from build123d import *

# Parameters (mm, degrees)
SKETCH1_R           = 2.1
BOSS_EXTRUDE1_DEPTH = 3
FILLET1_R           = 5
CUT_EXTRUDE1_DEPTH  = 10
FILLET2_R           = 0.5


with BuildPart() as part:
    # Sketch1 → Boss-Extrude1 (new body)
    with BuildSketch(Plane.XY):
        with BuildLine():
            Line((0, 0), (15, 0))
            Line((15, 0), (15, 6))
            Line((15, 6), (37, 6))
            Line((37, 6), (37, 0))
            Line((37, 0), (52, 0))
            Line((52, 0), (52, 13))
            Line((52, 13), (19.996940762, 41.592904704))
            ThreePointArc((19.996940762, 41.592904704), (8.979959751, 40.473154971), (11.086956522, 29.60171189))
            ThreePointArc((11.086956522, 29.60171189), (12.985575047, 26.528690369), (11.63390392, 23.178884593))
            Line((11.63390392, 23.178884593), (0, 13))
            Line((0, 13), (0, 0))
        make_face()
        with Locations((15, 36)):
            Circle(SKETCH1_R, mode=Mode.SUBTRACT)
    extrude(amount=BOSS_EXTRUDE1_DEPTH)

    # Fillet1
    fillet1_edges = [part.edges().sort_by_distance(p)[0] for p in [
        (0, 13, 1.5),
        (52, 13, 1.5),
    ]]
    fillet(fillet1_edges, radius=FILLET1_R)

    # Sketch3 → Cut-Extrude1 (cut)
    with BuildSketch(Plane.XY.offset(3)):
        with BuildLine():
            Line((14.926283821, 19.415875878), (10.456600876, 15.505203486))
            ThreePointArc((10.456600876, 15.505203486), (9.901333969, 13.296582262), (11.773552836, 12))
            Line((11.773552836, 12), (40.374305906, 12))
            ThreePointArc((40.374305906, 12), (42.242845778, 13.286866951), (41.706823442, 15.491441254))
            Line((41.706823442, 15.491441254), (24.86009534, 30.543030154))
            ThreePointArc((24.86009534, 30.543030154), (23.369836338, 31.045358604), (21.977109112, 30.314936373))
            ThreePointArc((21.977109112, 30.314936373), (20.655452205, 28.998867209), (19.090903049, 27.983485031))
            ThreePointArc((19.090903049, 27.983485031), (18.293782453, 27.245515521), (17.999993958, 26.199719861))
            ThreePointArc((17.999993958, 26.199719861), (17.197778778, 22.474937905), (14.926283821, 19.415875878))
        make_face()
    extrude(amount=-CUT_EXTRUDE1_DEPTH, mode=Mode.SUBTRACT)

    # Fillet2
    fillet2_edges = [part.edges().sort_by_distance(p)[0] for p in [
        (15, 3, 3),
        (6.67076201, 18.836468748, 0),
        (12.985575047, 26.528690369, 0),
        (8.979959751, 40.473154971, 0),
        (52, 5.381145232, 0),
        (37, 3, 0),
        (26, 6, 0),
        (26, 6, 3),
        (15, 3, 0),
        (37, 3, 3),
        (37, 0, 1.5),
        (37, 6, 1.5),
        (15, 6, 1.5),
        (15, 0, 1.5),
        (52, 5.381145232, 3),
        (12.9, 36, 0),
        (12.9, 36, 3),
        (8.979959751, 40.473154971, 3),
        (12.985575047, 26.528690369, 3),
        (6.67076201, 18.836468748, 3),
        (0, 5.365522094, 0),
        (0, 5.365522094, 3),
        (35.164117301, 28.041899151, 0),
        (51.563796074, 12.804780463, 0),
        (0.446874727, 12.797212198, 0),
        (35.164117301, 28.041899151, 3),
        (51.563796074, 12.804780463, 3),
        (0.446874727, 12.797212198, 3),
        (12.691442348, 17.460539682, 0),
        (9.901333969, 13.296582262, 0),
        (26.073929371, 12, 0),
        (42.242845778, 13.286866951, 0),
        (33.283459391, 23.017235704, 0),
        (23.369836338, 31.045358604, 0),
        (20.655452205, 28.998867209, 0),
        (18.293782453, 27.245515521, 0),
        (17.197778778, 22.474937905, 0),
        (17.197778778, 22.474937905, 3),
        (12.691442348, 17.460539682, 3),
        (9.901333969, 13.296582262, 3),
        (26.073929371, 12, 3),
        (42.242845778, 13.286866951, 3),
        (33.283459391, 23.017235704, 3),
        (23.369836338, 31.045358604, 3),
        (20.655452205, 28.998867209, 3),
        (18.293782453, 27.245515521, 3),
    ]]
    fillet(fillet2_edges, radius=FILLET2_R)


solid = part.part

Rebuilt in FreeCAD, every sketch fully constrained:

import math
import FreeCAD as App
import Part
import Sketcher
from FreeCAD import Vector
Q = App.Units.Quantity


def edges_at(feature, points):
    """Names of the edges that pass closest to the given points."""
    edges = feature.Shape.Edges
    near = lambda p: min(range(len(edges)), key=lambda i: edges[i].distToShape(Part.Vertex(*p))[0])
    return sorted({f"Edge{near(p) + 1}" for p in points})

doc = App.newDocument("Part")
body = doc.addObject("PartDesign::Body", "Body")

# Sketch on XY plane
sketch1 = body.newObject("Sketcher::SketchObject", "Sketch")
sketch1.AttachmentSupport = (doc.getObject("XY_Plane"), [""])
sketch1.MapMode = "FlatFace"
sketch1.addGeometry([
    Part.LineSegment(Vector(0, 0, 0), Vector(15, 0, 0)),  # 0
    Part.LineSegment(Vector(15, 0, 0), Vector(15, 6, 0)),  # 1
    Part.LineSegment(Vector(15, 6, 0), Vector(37, 6, 0)),  # 2
    Part.LineSegment(Vector(37, 6, 0), Vector(37, 0, 0)),  # 3
    Part.LineSegment(Vector(37, 0, 0), Vector(52, 0, 0)),  # 4
    Part.LineSegment(Vector(52, 0, 0), Vector(52, 13, 0)),  # 5
    Part.LineSegment(Vector(52, 13, 0), Vector(20, 41.6, 0)),  # 6
    Part.ArcOfCircle(Part.Circle(Vector(15, 36, 0), Vector(0, 0, 1), 7.5), math.radians(48), math.radians(239)),  # 7
    Part.ArcOfCircle(Part.Circle(Vector(9, 26.2, 0), Vector(0, 0, 1), 4), math.radians(-49), math.radians(59)),  # 8
    Part.LineSegment(Vector(11.6, 23.2, 0), Vector(0, 13, 0)),  # 9
    Part.LineSegment(Vector(0, 13, 0), Vector(0, 0, 0)),  # 10
    Part.Circle(Vector(15, 36, 0), Vector(0, 0, 1), 2.1),  # 11
], False)
sketch1.addConstraint([
    Sketcher.Constraint("Coincident", 0, 2, 1, 1),
    Sketcher.Constraint("Coincident", 1, 2, 2, 1),
    Sketcher.Constraint("Coincident", 2, 2, 3, 1),
    Sketcher.Constraint("Coincident", 3, 2, 4, 1),
    Sketcher.Constraint("Coincident", 4, 2, 5, 1),
    Sketcher.Constraint("Coincident", 5, 2, 6, 1),
    Sketcher.Constraint("Tangent", 6, 2, 7, 1),
    Sketcher.Constraint("Tangent", 7, 2, 8, 2),
    Sketcher.Constraint("Tangent", 8, 1, 9, 1),
    Sketcher.Constraint("Coincident", 9, 2, 10, 1),
    Sketcher.Constraint("Coincident", 10, 2, 0, 1),
    Sketcher.Constraint("Horizontal", 0),
    Sketcher.Constraint("Vertical", 1),
    Sketcher.Constraint("Horizontal", 2),
    Sketcher.Constraint("Vertical", 3),
    Sketcher.Constraint("Horizontal", 4),
    Sketcher.Constraint("Vertical", 5),
    Sketcher.Constraint("Vertical", 10),
    Sketcher.Constraint("Coincident", 10, 2, -1, 1),
    Sketcher.Constraint("Coincident", 11, 3, 7, 3),
    Sketcher.Constraint("PointOnObject", 3, 2, -1),
    Sketcher.Constraint("Horizontal", 5, 2, 9, 2),
    Sketcher.Constraint("Vertical", 11, 3, 0, 2),
    Sketcher.Constraint("Equal", 0, 4),
    Sketcher.Constraint("Radius", 8, Q("4 mm")),
    Sketcher.Constraint("Diameter", 11, Q("4.2 mm")),
    Sketcher.Constraint("Radius", 7, Q("7.5 mm")),
    Sketcher.Constraint("DistanceX", 0, 1, 0, 2, Q("15 mm")),
    Sketcher.Constraint("DistanceX", 2, 1, 2, 2, Q("22 mm")),
    Sketcher.Constraint("DistanceY", 1, 1, 1, 2, Q("6 mm")),
    Sketcher.Constraint("DistanceY", 5, 1, 5, 2, Q("13 mm")),
    Sketcher.Constraint("DistanceY", -1, 1, 7, 3, Q("36 mm")),
    Sketcher.Constraint("DistanceX", -1, 1, 8, 3, Q("9 mm")),
])
pad1 = body.newObject("PartDesign::Pad", "Pad")
pad1.Profile = sketch1
pad1.Length = 3
doc.recompute()

fillet = body.newObject("PartDesign::Fillet", "Fillet")
fillet.Base = (pad1, edges_at(pad1, [(0, 13, 1.5), (52, 13, 1.5)]))
fillet.Radius = 5

# Sketch on XY plane
sketch2 = body.newObject("Sketcher::SketchObject", "Sketch001")
sketch2.AttachmentSupport = (doc.getObject("XY_Plane"), [""])
sketch2.MapMode = "FlatFace"
sketch2.AttachmentOffset = App.Placement(Vector(0, 0, 3), App.Rotation())
sketch2.addGeometry([
    Part.LineSegment(Vector(14.926284, 19.415876, 0), Vector(10.456601, 15.505203, 0)),  # 0
    Part.ArcOfCircle(Part.Circle(Vector(11.773553, 14, 0), Vector(0, 0, 1), 2), math.radians(131.183746), math.radians(270)),  # 1
    Part.LineSegment(Vector(11.773553, 12, 0), Vector(40.374306, 12, 0)),  # 2
    Part.ArcOfCircle(Part.Circle(Vector(40.374306, 14, 0), Vector(0, 0, 1), 2), math.radians(-90), math.radians(48.221033)),  # 3
    Part.LineSegment(Vector(41.706823, 15.491441, 0), Vector(24.860095, 30.54303, 0)),  # 4
    Part.ArcOfCircle(Part.Circle(Vector(23.527578, 29.051589, 0), Vector(0, 0, 1), 2), math.radians(48.221033), math.radians(140.826284)),  # 5
    Part.ArcOfCircle(Part.Circle(Vector(15, 36, 0), Vector(0, 0, 1), 9), math.radians(-62.964351), math.radians(-39.173716)),  # 6
    Part.ArcOfCircle(Part.Circle(Vector(19.999993, 26.202037, 0), Vector(0, 0, 1), 2), math.radians(117.035649), math.radians(180.066389)),  # 7
    Part.ArcOfCircle(Part.Circle(Vector(9, 26.189292, 0), Vector(0, 0, 1), 9), math.radians(-48.816254), math.radians(0.066389)),  # 8
], False)
sketch2.addConstraint([
    Sketcher.Constraint("Tangent", 0, 2, 1, 1),
    Sketcher.Constraint("Tangent", 1, 2, 2, 1),
    Sketcher.Constraint("Tangent", 2, 2, 3, 1),
    Sketcher.Constraint("Tangent", 3, 2, 4, 1),
    Sketcher.Constraint("Tangent", 4, 2, 5, 1),
    Sketcher.Constraint("Tangent", 5, 2, 6, 2),
    Sketcher.Constraint("Tangent", 6, 1, 7, 1),
    Sketcher.Constraint("Tangent", 7, 2, 8, 2),
    Sketcher.Constraint("Tangent", 8, 1, 0, 1),
    Sketcher.Constraint("Horizontal", 2),
    Sketcher.Constraint("Equal", 1, 3),
    Sketcher.Constraint("Equal", 3, 5),
    Sketcher.Constraint("Equal", 5, 7),
    Sketcher.Constraint("Equal", 6, 8),
    Sketcher.Constraint("Radius", 1, Q("2 mm")),
    Sketcher.Constraint("Radius", 6, Q("9 mm")),
    Sketcher.Constraint("DistanceY", -1, 1, 1, 3, Q("14 mm")),
    Sketcher.Constraint("DistanceX", -1, 1, 6, 3, Q("15 mm")),
    Sketcher.Constraint("DistanceY", -1, 1, 6, 3, Q("36 mm")),
    Sketcher.Constraint("DistanceX", -1, 1, 8, 3, Q("9 mm")),
    Sketcher.Constraint("DistanceX", -1, 1, 0, 2, Q("10.456601 mm")),
    Sketcher.Constraint("DistanceY", 7, 3, 5, 2, Q("4.112899 mm")),
    Sketcher.Constraint("DistanceX", 7, 2, 4, 2, Q("6.860101 mm")),
    Sketcher.Constraint("DistanceX", 2, 1, 2, 2, Q("28.600753 mm")),
])
pocket1 = body.newObject("PartDesign::Pocket", "Pocket")
pocket1.Profile = sketch2
pocket1.Length = 10
doc.recompute()

fillet2 = body.newObject("PartDesign::Fillet", "Fillet001")
fillet2.Base = (pocket1, edges_at(pocket1, [
    (15, 3, 3),
    (6.671, 18.836, 0),
    (12.986, 26.529, 0),
    (8.98, 40.473, 0),
    (52, 5.381, 0),
    (37, 3, 0),
    (26, 6, 0),
    (26, 6, 3),
    (15, 3, 0),
    (37, 3, 3),
    (37, 0, 1.5),
    (37, 6, 1.5),
    (15, 6, 1.5),
    (15, 0, 1.5),
    (52, 5.381, 3),
    (12.9, 36, 0),
    (12.9, 36, 3),
    (8.98, 40.473, 3),
    (12.986, 26.529, 3),
    (6.671, 18.836, 3),
    (0, 5.366, 0),
    (0, 5.366, 3),
    (35.164, 28.042, 0),
    (51.564, 12.805, 0),
    (0.447, 12.797, 0),
    (35.164, 28.042, 3),
    (51.564, 12.805, 3),
    (0.447, 12.797, 3),
    (12.691, 17.461, 0),
    (9.901, 13.297, 0),
    (26.074, 12, 0),
    (42.243, 13.287, 0),
    (33.283, 23.017, 0),
    (23.37, 31.045, 0),
    (20.655, 28.999, 0),
    (18.294, 27.246, 0),
    (17.198, 22.475, 0),
    (17.198, 22.475, 3),
    (12.691, 17.461, 3),
    (9.901, 13.297, 3),
    (26.074, 12, 3),
    (42.243, 13.287, 3),
    (33.283, 23.017, 3),
    (23.37, 31.045, 3),
    (20.655, 28.999, 3),
    (18.294, 27.246, 3),
]))
fillet2.Radius = 0.5

doc.recompute()
